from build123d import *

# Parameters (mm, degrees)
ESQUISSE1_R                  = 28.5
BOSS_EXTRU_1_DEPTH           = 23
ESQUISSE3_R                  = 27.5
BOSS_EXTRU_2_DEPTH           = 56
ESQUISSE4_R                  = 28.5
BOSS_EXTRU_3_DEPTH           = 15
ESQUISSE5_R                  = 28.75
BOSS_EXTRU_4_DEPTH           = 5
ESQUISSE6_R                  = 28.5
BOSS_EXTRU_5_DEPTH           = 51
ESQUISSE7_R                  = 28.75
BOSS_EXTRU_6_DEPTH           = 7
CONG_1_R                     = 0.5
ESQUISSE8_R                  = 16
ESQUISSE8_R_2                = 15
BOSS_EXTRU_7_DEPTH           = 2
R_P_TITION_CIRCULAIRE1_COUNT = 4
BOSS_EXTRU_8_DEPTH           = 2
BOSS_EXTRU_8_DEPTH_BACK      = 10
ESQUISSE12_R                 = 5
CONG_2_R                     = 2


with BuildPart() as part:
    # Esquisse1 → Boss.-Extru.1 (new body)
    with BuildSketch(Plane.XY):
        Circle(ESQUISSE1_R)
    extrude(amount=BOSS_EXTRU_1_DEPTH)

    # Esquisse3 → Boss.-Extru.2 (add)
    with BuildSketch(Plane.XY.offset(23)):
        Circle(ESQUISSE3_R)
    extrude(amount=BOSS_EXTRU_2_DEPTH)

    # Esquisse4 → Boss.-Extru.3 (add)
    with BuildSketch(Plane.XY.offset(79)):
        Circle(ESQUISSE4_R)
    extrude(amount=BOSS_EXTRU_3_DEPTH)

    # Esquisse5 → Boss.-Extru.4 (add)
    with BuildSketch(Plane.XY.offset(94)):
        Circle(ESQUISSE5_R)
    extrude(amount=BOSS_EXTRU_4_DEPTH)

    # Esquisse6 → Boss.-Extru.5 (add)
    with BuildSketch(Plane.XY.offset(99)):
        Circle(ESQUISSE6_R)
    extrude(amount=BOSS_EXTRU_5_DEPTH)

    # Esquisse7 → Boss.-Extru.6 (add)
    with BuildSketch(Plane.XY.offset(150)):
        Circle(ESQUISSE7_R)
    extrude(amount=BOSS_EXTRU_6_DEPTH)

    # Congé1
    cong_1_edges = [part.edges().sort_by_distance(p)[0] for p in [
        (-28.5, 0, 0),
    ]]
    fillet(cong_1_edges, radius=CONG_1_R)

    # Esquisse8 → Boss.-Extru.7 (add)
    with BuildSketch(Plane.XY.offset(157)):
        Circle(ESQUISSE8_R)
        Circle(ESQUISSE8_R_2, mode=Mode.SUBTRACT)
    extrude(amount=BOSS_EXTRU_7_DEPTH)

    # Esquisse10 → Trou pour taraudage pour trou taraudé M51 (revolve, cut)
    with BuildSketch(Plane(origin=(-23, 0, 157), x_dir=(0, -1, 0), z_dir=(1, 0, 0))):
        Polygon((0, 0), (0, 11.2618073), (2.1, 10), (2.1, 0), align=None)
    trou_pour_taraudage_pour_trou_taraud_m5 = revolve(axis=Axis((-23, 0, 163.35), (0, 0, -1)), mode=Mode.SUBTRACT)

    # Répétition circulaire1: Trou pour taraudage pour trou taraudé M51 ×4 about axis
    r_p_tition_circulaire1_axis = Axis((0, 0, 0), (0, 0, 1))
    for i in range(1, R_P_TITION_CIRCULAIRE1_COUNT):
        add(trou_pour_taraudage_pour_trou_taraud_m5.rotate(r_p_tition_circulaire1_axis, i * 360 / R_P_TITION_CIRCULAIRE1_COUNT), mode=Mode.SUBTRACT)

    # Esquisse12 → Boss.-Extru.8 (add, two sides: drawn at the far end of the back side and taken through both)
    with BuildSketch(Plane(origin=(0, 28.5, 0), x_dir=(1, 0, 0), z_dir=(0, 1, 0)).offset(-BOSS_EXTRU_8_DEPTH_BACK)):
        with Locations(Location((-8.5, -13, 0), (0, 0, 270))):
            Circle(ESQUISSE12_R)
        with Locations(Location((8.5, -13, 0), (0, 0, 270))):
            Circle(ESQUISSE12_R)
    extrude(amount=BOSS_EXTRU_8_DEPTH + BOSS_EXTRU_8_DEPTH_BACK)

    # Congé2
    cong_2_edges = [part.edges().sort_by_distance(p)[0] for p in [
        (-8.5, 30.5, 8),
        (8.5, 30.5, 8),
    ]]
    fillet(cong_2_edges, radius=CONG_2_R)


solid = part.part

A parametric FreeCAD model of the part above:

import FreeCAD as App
import Part
import Sketcher

V = App.Vector
Q = App.Units.Quantity


def edges_at(feature, points):
    """Names of the edges that pass closest to the given points."""
    edges = feature.Shape.Edges
    near = lambda p: min(range(len(edges)), key=lambda i: edges[i].distToShape(Part.Vertex(*p))[0])
    return sorted({f"Edge{near(p) + 1}" for p in points})


def add_polygon(sketch, points):
    """Adds a closed chain of lines whose ends are joined by coincident constraints."""
    first, n = sketch.GeometryCount, len(points)
    for a, b in zip(points, points[1:] + points[:1]):
        sketch.addGeometry(Part.LineSegment(App.Vector(*a, 0), App.Vector(*b, 0)), False)
    for i in range(n):
        sketch.addConstraint(Sketcher.Constraint("Coincident", first + i, 2, first + (i + 1) % n, 1))

doc = App.newDocument("Part")
body = doc.addObject("PartDesign::Body", "Body")

# Sketch on XY plane
sketch1 = doc.addObject("Sketcher::SketchObject", "Sketch")
body.addObject(sketch1)
sketch1.AttachmentSupport = (doc.XY_Plane, [""])
sketch1.MapMode = "FlatFace"
sketch1.addGeometry(Part.Circle(V(0, 0, 0), V(0, 0, 1), 28), False)
sketch1.addConstraint(Sketcher.Constraint("Coincident", 0, 3, -1, 1))
sketch1.addConstraint(Sketcher.Constraint("Diameter", 0, Q("57 mm")))
pad1 = doc.addObject("PartDesign::Pad", "Pad")
body.addObject(pad1)
pad1.Profile = sketch1
pad1.Length = 23

# Sketch on XY plane
sketch2 = doc.addObject("Sketcher::SketchObject", "Sketch001")
body.addObject(sketch2)
sketch2.AttachmentSupport = (doc.XY_Plane, [""])
sketch2.MapMode = "FlatFace"
sketch2.AttachmentOffset = App.Placement(V(0, 0, 23), App.Rotation())
sketch2.addGeometry(Part.Circle(V(0, 0, 0), V(0, 0, 1), 28), False)
sketch2.addConstraint(Sketcher.Constraint("Coincident", 0, 3, -1, 1))
sketch2.addConstraint(Sketcher.Constraint("Diameter", 0, Q("55 mm")))
pad2 = doc.addObject("PartDesign::Pad", "Pad001")
body.addObject(pad2)
pad2.Profile = sketch2
pad2.Length = 56

# Sketch on XY plane
sketch3 = doc.addObject("Sketcher::SketchObject", "Sketch002")
body.addObject(sketch3)
sketch3.AttachmentSupport = (doc.XY_Plane, [""])
sketch3.MapMode = "FlatFace"
sketch3.AttachmentOffset = App.Placement(V(0, 0, 79), App.Rotation())
sketch3.addGeometry(Part.Circle(V(0, 0, 0), V(0, 0, 1), 28), False)
sketch3.addConstraint(Sketcher.Constraint("Coincident", 0, 3, -1, 1))
sketch3.addConstraint(Sketcher.Constraint("Diameter", 0, Q("57 mm")))
pad3 = doc.addObject("PartDesign::Pad", "Pad002")
body.addObject(pad3)
pad3.Profile = sketch3
pad3.Length = 15

# Sketch on XY plane
sketch4 = doc.addObject("Sketcher::SketchObject", "Sketch003")
body.addObject(sketch4)
sketch4.AttachmentSupport = (doc.XY_Plane, [""])
sketch4.MapMode = "FlatFace"
sketch4.AttachmentOffset = App.Placement(V(0, 0, 94), App.Rotation())
sketch4.addGeometry(Part.Circle(V(0, 0, 0), V(0, 0, 1), 29), False)
sketch4.addConstraint(Sketcher.Constraint("Coincident", 0, 3, -1, 1))
sketch4.addConstraint(Sketcher.Constraint("Diameter", 0, Q("57.5 mm")))
pad4 = doc.addObject("PartDesign::Pad", "Pad003")
body.addObject(pad4)
pad4.Profile = sketch4
pad4.Length = 5

# Sketch on XY plane
sketch5 = doc.addObject("Sketcher::SketchObject", "Sketch004")
body.addObject(sketch5)
sketch5.AttachmentSupport = (doc.XY_Plane, [""])
sketch5.MapMode = "FlatFace"
sketch5.AttachmentOffset = App.Placement(V(0, 0, 99), App.Rotation())
sketch5.addGeometry(Part.Circle(V(0, 0, 0), V(0, 0, 1), 28), False)
sketch5.addConstraint(Sketcher.Constraint("Coincident", 0, 3, -1, 1))
sketch5.addConstraint(Sketcher.Constraint("Diameter", 0, Q("57 mm")))
pad5 = doc.addObject("PartDesign::Pad", "Pad004")
body.addObject(pad5)
pad5.Profile = sketch5
pad5.Length = 51

# Sketch on XY plane
sketch6 = doc.addObject("Sketcher::SketchObject", "Sketch005")
body.addObject(sketch6)
sketch6.AttachmentSupport = (doc.XY_Plane, [""])
sketch6.MapMode = "FlatFace"
sketch6.AttachmentOffset = App.Placement(V(0, 0, 150), App.Rotation())
sketch6.addGeometry(Part.Circle(V(0, 0, 0), V(0, 0, 1), 29), False)
sketch6.addConstraint(Sketcher.Constraint("Coincident", 0, 3, -1, 1))
sketch6.addConstraint(Sketcher.Constraint("Diameter", 0, Q("57.5 mm")))
pad6 = doc.addObject("PartDesign::Pad", "Pad005")
body.addObject(pad6)
pad6.Profile = sketch6
pad6.Length = 7
doc.recompute()

fillet = doc.addObject("PartDesign::Fillet", "Fillet")
body.addObject(fillet)
fillet.Base = (pad6, edges_at(pad6, [(-28.5, 0, 0)]))
fillet.Radius = 0.5

# Sketch on XY plane
sketch7 = doc.addObject("Sketcher::SketchObject", "Sketch006")
body.addObject(sketch7)
sketch7.AttachmentSupport = (doc.XY_Plane, [""])
sketch7.MapMode = "FlatFace"
sketch7.AttachmentOffset = App.Placement(V(0, 0, 157), App.Rotation())
sketch7.addGeometry(Part.Circle(V(0, 0, 0), V(0, 0, 1), 16), False)
sketch7.addGeometry(Part.Circle(V(0, 0, 0), V(0, 0, 1), 15), False)
sketch7.addConstraint(Sketcher.Constraint("Coincident", 0, 3, -1, 1))
sketch7.addConstraint(Sketcher.Constraint("Coincident", 1, 3, -1, 1))
sketch7.addConstraint(Sketcher.Constraint("Diameter", 0, Q("32 mm")))
sketch7.addConstraint(Sketcher.Constraint("Diameter", 1, Q("30 mm")))
pad7 = doc.addObject("PartDesign::Pad", "Pad006")
body.addObject(pad7)
pad7.Profile = sketch7
pad7.Length = 2

# Sketch on YZ plane
sketch8 = doc.addObject("Sketcher::SketchObject", "Sketch007")
body.addObject(sketch8)
sketch8.AttachmentSupport = (doc.YZ_Plane, [""])
sketch8.MapMode = "FlatFace"
sketch8.AttachmentOffset = App.Placement(V(0, 0, -23), App.Rotation())
add_polygon(sketch8, [(0, 145.7), (0, 157), (-2.1, 157), (-2.1, 147)])  # lines 0-3
sketch8.addConstraint(Sketcher.Constraint("Vertical", 0))
sketch8.addConstraint(Sketcher.Constraint("Horizontal", 1))
sketch8.addConstraint(Sketcher.Constraint("Vertical", 2))
sketch8.addConstraint(Sketcher.Constraint("PointOnObject", 0, 2, -2))
sketch8.addConstraint(Sketcher.Constraint("DistanceY", 2, 2, 2, 1, Q("10 mm")))
sketch8.addConstraint(Sketcher.Constraint("Angle", 3, Q("-31 deg")))
sketch8.addConstraint(Sketcher.Constraint("DistanceX", 1, 2, 1, 1, Q("2.1 mm")))
sketch8.addConstraint(Sketcher.Constraint("DistanceY", -1, 1, 0, 2, Q("157 mm")))
groove = doc.addObject("PartDesign::Groove", "Groove")
body.addObject(groove)
groove.Profile = sketch8
groove.ReferenceAxis = (sketch8, ["V_Axis"])
groove.Angle = 360
doc.recompute()

polarpattern = doc.addObject("PartDesign::PolarPattern", "PolarPattern")
body.addObject(polarpattern)
polarpattern.Originals = [groove]
polarpattern.Axis = (doc.Z_Axis, [""])
polarpattern.Angle = 360
polarpattern.Occurrences = 4
body.Tip = polarpattern

# Sketch on XZ plane
sketch9 = doc.addObject("Sketcher::SketchObject", "Sketch008")
body.addObject(sketch9)
sketch9.AttachmentSupport = (doc.XZ_Plane, [""])
sketch9.MapMode = "FlatFace"
sketch9.AttachmentOffset = App.Placement(V(0, 0, -28.5), App.Rotation())
sketch9.addGeometry(Part.Circle(V(-8, 13, 0), V(0, 0, 1), 5), False)
sketch9.addGeometry(Part.Circle(V(8, 13, 0), V(0, 0, 1), 5), False)
sketch9.addConstraint(Sketcher.Constraint("Equal", 0, 1))
sketch9.addConstraint(Sketcher.Constraint("Symmetric", 0, 3, 1, 3, -2))
sketch9.addConstraint(Sketcher.Constraint("Diameter", 0, Q("10 mm")))
sketch9.addConstraint(Sketcher.Constraint("DistanceY", -1, 1, 0, 3, Q("13 mm")))
sketch9.addConstraint(Sketcher.Constraint("DistanceX", 0, 3, 1, 3, Q("17 mm")))
pad8 = doc.addObject("PartDesign::Pad", "Pad007")
body.addObject(pad8)
pad8.Profile = sketch9
pad8.Type = "TwoLengths"
pad8.Length = 2
pad8.Length2 = 10
pad8.Reversed = True
doc.recompute()

fillet2 = doc.addObject("PartDesign::Fillet", "Fillet001")
body.addObject(fillet2)
fillet2.Base = (pad8, edges_at(pad8, [(-8.5, 30.5, 8), (8.5, 30.5, 8)]))
fillet2.Radius = 2

doc.recompute()
